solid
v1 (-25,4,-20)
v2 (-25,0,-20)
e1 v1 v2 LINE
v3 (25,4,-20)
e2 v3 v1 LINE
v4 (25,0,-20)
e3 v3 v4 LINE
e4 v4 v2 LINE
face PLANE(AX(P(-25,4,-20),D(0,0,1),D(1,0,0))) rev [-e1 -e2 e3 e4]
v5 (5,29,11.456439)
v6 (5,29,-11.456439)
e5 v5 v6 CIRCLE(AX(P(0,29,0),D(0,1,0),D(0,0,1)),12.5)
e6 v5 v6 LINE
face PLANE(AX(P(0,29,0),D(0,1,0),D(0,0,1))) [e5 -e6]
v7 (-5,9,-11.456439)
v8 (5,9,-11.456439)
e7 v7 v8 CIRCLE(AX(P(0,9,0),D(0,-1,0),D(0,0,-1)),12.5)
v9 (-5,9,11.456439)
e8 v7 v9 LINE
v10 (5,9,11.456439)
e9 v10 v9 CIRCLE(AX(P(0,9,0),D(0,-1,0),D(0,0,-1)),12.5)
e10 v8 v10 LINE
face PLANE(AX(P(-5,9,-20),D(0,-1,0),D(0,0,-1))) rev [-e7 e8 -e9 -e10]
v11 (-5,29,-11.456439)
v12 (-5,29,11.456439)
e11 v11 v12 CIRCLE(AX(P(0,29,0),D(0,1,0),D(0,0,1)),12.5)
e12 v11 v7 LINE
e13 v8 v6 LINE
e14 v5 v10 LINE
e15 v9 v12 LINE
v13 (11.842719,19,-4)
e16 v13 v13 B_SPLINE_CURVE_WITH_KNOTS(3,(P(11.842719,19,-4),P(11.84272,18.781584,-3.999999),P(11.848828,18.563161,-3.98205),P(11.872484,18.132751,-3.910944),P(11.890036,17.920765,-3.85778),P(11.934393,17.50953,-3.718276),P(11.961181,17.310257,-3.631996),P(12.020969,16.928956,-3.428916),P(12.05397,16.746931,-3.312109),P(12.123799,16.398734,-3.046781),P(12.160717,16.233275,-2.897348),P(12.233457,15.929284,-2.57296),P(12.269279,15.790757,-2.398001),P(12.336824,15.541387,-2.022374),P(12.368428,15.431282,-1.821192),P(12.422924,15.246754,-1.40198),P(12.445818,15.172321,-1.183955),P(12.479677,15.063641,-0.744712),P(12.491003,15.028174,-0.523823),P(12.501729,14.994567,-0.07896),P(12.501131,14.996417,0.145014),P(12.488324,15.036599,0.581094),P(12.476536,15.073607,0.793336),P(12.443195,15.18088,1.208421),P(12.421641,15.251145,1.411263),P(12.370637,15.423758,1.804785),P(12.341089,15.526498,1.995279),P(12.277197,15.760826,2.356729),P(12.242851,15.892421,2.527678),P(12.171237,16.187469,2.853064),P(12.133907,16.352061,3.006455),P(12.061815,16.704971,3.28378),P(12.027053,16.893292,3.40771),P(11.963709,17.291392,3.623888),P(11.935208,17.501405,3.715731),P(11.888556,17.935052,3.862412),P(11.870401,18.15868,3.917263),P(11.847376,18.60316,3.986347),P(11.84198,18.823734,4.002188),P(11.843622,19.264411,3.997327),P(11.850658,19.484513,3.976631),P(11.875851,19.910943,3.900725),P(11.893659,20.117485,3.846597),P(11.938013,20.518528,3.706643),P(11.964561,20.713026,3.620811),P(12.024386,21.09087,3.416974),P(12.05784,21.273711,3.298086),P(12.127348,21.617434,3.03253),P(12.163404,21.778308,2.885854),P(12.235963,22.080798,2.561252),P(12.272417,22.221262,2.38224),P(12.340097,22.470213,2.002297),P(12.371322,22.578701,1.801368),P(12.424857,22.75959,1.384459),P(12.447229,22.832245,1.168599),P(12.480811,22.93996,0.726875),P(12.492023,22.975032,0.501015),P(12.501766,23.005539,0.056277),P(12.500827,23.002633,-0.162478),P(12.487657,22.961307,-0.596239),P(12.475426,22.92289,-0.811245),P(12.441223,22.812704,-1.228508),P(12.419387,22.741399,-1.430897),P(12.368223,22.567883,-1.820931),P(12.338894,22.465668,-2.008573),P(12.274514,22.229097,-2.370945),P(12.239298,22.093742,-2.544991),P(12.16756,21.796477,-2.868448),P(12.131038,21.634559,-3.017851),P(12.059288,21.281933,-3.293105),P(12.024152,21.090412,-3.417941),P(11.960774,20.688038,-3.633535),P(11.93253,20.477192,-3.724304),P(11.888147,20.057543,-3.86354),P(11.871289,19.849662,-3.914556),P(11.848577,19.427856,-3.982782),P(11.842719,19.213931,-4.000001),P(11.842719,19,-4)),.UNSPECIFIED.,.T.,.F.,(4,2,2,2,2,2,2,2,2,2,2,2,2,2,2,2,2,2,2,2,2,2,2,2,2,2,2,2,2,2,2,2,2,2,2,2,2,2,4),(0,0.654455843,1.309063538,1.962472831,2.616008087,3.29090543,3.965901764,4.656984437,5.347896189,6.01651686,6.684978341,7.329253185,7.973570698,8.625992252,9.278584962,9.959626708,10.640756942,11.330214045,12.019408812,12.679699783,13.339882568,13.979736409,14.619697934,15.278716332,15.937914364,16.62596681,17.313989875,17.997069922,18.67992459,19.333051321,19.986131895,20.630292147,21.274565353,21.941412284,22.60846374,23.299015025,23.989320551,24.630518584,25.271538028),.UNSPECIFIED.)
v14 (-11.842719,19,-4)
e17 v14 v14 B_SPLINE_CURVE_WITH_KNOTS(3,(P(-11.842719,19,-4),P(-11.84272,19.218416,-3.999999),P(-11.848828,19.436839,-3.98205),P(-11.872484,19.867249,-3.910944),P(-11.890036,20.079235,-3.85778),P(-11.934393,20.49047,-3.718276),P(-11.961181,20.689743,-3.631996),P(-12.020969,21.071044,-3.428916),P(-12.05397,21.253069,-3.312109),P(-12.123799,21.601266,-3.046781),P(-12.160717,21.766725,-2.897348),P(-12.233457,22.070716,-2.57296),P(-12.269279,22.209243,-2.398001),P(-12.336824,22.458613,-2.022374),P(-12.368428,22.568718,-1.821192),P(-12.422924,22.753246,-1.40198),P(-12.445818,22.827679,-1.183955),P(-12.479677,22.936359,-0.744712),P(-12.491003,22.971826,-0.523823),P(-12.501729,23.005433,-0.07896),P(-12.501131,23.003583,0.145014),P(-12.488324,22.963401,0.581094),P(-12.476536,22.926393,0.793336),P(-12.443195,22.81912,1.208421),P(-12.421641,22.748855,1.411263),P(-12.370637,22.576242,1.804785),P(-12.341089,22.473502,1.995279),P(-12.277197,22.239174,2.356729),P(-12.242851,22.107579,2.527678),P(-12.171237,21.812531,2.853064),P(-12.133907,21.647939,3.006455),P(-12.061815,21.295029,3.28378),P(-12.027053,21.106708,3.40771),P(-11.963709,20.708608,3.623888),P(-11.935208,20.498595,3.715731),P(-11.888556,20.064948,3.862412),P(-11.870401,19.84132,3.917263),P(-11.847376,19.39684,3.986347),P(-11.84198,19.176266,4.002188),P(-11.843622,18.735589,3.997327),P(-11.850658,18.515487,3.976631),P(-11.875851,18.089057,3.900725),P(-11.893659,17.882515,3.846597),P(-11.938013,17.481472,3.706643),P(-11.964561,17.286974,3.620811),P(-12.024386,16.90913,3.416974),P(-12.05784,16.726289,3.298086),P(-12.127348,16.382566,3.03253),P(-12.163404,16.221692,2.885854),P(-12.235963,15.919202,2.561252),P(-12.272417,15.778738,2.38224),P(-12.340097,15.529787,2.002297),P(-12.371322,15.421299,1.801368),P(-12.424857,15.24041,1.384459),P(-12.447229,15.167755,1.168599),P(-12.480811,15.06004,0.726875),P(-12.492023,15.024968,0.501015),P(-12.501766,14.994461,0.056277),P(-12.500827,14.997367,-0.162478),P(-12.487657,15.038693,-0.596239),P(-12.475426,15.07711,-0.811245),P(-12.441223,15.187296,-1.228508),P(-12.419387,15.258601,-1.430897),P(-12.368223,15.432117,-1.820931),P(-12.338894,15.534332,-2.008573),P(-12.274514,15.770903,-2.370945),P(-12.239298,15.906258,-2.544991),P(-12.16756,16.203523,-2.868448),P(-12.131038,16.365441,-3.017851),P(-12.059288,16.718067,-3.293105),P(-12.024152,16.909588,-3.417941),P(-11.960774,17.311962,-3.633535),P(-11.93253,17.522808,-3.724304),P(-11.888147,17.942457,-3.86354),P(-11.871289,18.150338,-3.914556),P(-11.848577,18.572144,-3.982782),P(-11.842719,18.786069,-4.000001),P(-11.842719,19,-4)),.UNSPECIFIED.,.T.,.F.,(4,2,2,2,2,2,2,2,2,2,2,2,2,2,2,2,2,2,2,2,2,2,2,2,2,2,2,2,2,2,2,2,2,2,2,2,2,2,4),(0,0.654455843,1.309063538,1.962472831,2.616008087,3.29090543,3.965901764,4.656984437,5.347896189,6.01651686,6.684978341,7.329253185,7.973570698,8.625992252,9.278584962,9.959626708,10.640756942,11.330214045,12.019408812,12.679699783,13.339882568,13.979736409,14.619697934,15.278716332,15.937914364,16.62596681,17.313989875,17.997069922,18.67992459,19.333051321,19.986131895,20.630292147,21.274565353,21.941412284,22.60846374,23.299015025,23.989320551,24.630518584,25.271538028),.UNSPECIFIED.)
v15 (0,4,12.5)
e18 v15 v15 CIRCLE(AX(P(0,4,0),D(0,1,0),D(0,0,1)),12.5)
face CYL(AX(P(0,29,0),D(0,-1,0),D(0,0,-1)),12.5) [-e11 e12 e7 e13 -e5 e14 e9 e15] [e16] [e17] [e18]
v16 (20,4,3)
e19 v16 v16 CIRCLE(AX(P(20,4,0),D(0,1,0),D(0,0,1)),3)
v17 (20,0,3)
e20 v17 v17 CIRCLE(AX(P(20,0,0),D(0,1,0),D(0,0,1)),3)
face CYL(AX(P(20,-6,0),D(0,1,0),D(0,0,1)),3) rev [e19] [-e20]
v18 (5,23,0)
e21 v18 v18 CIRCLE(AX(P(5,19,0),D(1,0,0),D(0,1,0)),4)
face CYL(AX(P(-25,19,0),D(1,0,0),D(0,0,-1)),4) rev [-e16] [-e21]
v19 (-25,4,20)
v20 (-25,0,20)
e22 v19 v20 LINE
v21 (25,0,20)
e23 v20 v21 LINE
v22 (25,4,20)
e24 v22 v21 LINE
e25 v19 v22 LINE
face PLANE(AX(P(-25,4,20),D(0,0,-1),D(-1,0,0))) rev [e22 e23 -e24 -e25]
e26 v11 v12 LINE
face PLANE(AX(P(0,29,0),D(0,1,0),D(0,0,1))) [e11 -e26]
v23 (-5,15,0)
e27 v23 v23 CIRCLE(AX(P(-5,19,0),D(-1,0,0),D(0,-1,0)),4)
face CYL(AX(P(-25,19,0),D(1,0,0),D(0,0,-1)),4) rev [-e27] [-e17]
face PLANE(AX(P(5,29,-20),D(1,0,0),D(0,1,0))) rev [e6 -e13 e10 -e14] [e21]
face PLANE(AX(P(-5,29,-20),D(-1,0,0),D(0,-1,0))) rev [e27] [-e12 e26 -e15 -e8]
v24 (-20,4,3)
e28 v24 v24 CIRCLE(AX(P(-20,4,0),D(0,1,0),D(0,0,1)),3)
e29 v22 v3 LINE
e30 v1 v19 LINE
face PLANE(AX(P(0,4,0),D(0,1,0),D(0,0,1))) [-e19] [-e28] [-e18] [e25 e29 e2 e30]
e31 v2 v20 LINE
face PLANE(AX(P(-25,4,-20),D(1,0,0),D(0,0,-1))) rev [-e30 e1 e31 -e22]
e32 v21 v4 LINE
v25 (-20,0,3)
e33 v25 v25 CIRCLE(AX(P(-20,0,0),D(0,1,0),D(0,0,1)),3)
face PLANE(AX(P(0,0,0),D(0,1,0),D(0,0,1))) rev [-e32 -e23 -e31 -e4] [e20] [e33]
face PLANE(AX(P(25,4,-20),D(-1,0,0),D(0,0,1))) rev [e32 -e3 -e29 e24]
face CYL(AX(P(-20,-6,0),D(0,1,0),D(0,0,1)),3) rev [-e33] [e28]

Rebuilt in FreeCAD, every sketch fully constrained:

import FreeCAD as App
import Part
import Sketcher
from FreeCAD import Vector


def add_polygon(sketch, points):
    """Adds a closed chain of lines whose ends are joined by coincident constraints."""
    first, n = sketch.GeometryCount, len(points)
    for a, b in zip(points, points[1:] + points[:1]):
        sketch.addGeometry(Part.LineSegment(App.Vector(*a, 0), App.Vector(*b, 0)), False)
    for i in range(n):
        sketch.addConstraint(Sketcher.Constraint("Coincident", first + i, 2, first + (i + 1) % n, 1))

doc = App.newDocument("Part")
params = doc.addObject("Spreadsheet::Sheet", "Params")
for row, (alias, value) in enumerate([
    ("sketch1_width", "50 mm"),
    ("sketch1_height", "40 mm"),
    ("pad1_length", "4 mm"),
    ("sketch2_diameter", "25 mm"),
    ("pad2_length", "25 mm"),
    ("sketch3_width", "10 mm"),
    ("sketch3_height", "20 mm"),
    ("pocket1_length", "40 mm"),
    ("sketch4_diameter", "8 mm"),
    ("sketch5_diameter", "6 mm"),
    ("pocket3_length", "10 mm"),
], start=1):
    params.set(f"A{row}", alias)
    params.set(f"B{row}", "=" + value)
    params.setAlias(f"B{row}", alias)

body = doc.addObject("PartDesign::Body", "Body")

# Sketch on XZ plane
sketch1 = body.newObject("Sketcher::SketchObject", "Sketch")
sketch1.AttachmentSupport = (doc.getObject("XZ_Plane"), [""])
sketch1.MapMode = "FlatFace"
add_polygon(sketch1, [(-25, -20), (-25, 20), (25, 20), (25, -20)])  # lines 0-3
sketch1.addConstraint(Sketcher.Constraint("Vertical", 0))
sketch1.addConstraint(Sketcher.Constraint("Horizontal", 1))
sketch1.addConstraint(Sketcher.Constraint("Vertical", 2))
sketch1.addConstraint(Sketcher.Constraint("Horizontal", 3))
sketch1.addConstraint(Sketcher.Constraint("Symmetric", 0, 2, 2, 2, -1, 1))
sketch1.addConstraint(Sketcher.Constraint("DistanceX", 1, 1, 1, 2, 50.0))
sketch1.addConstraint(Sketcher.Constraint("DistanceY", 0, 1, 0, 2, 40.0))
sketch1.setExpression("Constraints[9]", "Params.sketch1_width")
sketch1.setExpression("Constraints[10]", "Params.sketch1_height")
pad1 = body.newObject("PartDesign::Pad", "Pad")
pad1.Profile = sketch1
pad1.setExpression("Length", "Params.pad1_length")
pad1.Reversed = True

# Sketch on XZ plane
sketch2 = body.newObject("Sketcher::SketchObject", "Sketch001")
sketch2.AttachmentSupport = (doc.getObject("XZ_Plane"), [""])
sketch2.MapMode = "FlatFace"
sketch2.AttachmentOffset = App.Placement(Vector(0, 0, -4), App.Rotation())
sketch2.addGeometry(Part.Circle(Vector(0, 0, 0), Vector(0, 0, 1), 12), False)
sketch2.addConstraint(Sketcher.Constraint("Coincident", 0, 3, -1, 1))
sketch2.addConstraint(Sketcher.Constraint("Diameter", 0, 25.0))
sketch2.setExpression("Constraints[1]", "Params.sketch2_diameter")
pad2 = body.newObject("PartDesign::Pad", "Pad001")
pad2.Profile = sketch2
pad2.setExpression("Length", "Params.pad2_length")
pad2.Reversed = True

# Sketch on XY plane
sketch3 = body.newObject("Sketcher::SketchObject", "Sketch002")
sketch3.AttachmentSupport = (doc.getObject("XY_Plane"), [""])
sketch3.MapMode = "FlatFace"
add_polygon(sketch3, [(-5, 29), (-5, 9), (5, 9), (5, 29)])  # lines 0-3
sketch3.addConstraint(Sketcher.Constraint("Vertical", 0))
sketch3.addConstraint(Sketcher.Constraint("Horizontal", 1))
sketch3.addConstraint(Sketcher.Constraint("Vertical", 2))
sketch3.addConstraint(Sketcher.Constraint("Horizontal", 3))
sketch3.addConstraint(Sketcher.Constraint("DistanceX", 1, 1, 1, 2, 10.0))
sketch3.addConstraint(Sketcher.Constraint("DistanceY", 0, 2, 0, 1, 20.0))
sketch3.addConstraint(Sketcher.Constraint("DistanceX", 0, 2, -1, 1, 5.0))
sketch3.addConstraint(Sketcher.Constraint("DistanceY", -1, 1, 0, 2, 9.0))
sketch3.setExpression("Constraints[8]", "Params.sketch3_width")
sketch3.setExpression("Constraints[9]", "Params.sketch3_height")
pocket1 = body.newObject("PartDesign::Pocket", "Pocket")
pocket1.Profile = sketch3
pocket1.setExpression("Length", "Params.pocket1_length")
pocket1.Midplane = True

# Sketch on YZ plane
sketch4 = body.newObject("Sketcher::SketchObject", "Sketch003")
sketch4.AttachmentSupport = (doc.getObject("YZ_Plane"), [""])
sketch4.MapMode = "FlatFace"
sketch4.addGeometry(Part.Circle(Vector(19, 0, 0), Vector(0, 0, 1), 4), False)
sketch4.addConstraint(Sketcher.Constraint("PointOnObject", 0, 3, -1))
sketch4.addConstraint(Sketcher.Constraint("Diameter", 0, 8.0))
sketch4.addConstraint(Sketcher.Constraint("DistanceX", -1, 1, 0, 3, 19.0))
sketch4.setExpression("Constraints[1]", "Params.sketch4_diameter")
pocket2 = body.newObject("PartDesign::Pocket", "Pocket001")
pocket2.Profile = sketch4
pocket2.Type = "ThroughAll"
pocket2.Midplane = True

# Sketch on XZ plane
sketch5 = body.newObject("Sketcher::SketchObject", "Sketch004")
sketch5.AttachmentSupport = (doc.getObject("XZ_Plane"), [""])
sketch5.MapMode = "FlatFace"
sketch5.AttachmentOffset = App.Placement(Vector(0, 0, -4), App.Rotation())
sketch5.addGeometry(Part.Circle(Vector(-20, 0, 0), Vector(0, 0, 1), 3), False)
sketch5.addGeometry(Part.Circle(Vector(20, 0, 0), Vector(0, 0, 1), 3), False)
sketch5.addConstraint(Sketcher.Constraint("Equal", 0, 1))
sketch5.addConstraint(Sketcher.Constraint("Symmetric", 0, 3, 1, 3, -1, 1))
sketch5.addConstraint(Sketcher.Constraint("PointOnObject", 0, 3, -1))
sketch5.addConstraint(Sketcher.Constraint("Diameter", 0, 6.0))
sketch5.addConstraint(Sketcher.Constraint("DistanceX", 0, 3, -1, 1, 20.0))
sketch5.setExpression("Constraints[3]", "Params.sketch5_diameter")
pocket3 = body.newObject("PartDesign::Pocket", "Pocket002")
pocket3.Profile = sketch5
pocket3.setExpression("Length", "Params.pocket3_length")
pocket3.Reversed = True

doc.recompute()
